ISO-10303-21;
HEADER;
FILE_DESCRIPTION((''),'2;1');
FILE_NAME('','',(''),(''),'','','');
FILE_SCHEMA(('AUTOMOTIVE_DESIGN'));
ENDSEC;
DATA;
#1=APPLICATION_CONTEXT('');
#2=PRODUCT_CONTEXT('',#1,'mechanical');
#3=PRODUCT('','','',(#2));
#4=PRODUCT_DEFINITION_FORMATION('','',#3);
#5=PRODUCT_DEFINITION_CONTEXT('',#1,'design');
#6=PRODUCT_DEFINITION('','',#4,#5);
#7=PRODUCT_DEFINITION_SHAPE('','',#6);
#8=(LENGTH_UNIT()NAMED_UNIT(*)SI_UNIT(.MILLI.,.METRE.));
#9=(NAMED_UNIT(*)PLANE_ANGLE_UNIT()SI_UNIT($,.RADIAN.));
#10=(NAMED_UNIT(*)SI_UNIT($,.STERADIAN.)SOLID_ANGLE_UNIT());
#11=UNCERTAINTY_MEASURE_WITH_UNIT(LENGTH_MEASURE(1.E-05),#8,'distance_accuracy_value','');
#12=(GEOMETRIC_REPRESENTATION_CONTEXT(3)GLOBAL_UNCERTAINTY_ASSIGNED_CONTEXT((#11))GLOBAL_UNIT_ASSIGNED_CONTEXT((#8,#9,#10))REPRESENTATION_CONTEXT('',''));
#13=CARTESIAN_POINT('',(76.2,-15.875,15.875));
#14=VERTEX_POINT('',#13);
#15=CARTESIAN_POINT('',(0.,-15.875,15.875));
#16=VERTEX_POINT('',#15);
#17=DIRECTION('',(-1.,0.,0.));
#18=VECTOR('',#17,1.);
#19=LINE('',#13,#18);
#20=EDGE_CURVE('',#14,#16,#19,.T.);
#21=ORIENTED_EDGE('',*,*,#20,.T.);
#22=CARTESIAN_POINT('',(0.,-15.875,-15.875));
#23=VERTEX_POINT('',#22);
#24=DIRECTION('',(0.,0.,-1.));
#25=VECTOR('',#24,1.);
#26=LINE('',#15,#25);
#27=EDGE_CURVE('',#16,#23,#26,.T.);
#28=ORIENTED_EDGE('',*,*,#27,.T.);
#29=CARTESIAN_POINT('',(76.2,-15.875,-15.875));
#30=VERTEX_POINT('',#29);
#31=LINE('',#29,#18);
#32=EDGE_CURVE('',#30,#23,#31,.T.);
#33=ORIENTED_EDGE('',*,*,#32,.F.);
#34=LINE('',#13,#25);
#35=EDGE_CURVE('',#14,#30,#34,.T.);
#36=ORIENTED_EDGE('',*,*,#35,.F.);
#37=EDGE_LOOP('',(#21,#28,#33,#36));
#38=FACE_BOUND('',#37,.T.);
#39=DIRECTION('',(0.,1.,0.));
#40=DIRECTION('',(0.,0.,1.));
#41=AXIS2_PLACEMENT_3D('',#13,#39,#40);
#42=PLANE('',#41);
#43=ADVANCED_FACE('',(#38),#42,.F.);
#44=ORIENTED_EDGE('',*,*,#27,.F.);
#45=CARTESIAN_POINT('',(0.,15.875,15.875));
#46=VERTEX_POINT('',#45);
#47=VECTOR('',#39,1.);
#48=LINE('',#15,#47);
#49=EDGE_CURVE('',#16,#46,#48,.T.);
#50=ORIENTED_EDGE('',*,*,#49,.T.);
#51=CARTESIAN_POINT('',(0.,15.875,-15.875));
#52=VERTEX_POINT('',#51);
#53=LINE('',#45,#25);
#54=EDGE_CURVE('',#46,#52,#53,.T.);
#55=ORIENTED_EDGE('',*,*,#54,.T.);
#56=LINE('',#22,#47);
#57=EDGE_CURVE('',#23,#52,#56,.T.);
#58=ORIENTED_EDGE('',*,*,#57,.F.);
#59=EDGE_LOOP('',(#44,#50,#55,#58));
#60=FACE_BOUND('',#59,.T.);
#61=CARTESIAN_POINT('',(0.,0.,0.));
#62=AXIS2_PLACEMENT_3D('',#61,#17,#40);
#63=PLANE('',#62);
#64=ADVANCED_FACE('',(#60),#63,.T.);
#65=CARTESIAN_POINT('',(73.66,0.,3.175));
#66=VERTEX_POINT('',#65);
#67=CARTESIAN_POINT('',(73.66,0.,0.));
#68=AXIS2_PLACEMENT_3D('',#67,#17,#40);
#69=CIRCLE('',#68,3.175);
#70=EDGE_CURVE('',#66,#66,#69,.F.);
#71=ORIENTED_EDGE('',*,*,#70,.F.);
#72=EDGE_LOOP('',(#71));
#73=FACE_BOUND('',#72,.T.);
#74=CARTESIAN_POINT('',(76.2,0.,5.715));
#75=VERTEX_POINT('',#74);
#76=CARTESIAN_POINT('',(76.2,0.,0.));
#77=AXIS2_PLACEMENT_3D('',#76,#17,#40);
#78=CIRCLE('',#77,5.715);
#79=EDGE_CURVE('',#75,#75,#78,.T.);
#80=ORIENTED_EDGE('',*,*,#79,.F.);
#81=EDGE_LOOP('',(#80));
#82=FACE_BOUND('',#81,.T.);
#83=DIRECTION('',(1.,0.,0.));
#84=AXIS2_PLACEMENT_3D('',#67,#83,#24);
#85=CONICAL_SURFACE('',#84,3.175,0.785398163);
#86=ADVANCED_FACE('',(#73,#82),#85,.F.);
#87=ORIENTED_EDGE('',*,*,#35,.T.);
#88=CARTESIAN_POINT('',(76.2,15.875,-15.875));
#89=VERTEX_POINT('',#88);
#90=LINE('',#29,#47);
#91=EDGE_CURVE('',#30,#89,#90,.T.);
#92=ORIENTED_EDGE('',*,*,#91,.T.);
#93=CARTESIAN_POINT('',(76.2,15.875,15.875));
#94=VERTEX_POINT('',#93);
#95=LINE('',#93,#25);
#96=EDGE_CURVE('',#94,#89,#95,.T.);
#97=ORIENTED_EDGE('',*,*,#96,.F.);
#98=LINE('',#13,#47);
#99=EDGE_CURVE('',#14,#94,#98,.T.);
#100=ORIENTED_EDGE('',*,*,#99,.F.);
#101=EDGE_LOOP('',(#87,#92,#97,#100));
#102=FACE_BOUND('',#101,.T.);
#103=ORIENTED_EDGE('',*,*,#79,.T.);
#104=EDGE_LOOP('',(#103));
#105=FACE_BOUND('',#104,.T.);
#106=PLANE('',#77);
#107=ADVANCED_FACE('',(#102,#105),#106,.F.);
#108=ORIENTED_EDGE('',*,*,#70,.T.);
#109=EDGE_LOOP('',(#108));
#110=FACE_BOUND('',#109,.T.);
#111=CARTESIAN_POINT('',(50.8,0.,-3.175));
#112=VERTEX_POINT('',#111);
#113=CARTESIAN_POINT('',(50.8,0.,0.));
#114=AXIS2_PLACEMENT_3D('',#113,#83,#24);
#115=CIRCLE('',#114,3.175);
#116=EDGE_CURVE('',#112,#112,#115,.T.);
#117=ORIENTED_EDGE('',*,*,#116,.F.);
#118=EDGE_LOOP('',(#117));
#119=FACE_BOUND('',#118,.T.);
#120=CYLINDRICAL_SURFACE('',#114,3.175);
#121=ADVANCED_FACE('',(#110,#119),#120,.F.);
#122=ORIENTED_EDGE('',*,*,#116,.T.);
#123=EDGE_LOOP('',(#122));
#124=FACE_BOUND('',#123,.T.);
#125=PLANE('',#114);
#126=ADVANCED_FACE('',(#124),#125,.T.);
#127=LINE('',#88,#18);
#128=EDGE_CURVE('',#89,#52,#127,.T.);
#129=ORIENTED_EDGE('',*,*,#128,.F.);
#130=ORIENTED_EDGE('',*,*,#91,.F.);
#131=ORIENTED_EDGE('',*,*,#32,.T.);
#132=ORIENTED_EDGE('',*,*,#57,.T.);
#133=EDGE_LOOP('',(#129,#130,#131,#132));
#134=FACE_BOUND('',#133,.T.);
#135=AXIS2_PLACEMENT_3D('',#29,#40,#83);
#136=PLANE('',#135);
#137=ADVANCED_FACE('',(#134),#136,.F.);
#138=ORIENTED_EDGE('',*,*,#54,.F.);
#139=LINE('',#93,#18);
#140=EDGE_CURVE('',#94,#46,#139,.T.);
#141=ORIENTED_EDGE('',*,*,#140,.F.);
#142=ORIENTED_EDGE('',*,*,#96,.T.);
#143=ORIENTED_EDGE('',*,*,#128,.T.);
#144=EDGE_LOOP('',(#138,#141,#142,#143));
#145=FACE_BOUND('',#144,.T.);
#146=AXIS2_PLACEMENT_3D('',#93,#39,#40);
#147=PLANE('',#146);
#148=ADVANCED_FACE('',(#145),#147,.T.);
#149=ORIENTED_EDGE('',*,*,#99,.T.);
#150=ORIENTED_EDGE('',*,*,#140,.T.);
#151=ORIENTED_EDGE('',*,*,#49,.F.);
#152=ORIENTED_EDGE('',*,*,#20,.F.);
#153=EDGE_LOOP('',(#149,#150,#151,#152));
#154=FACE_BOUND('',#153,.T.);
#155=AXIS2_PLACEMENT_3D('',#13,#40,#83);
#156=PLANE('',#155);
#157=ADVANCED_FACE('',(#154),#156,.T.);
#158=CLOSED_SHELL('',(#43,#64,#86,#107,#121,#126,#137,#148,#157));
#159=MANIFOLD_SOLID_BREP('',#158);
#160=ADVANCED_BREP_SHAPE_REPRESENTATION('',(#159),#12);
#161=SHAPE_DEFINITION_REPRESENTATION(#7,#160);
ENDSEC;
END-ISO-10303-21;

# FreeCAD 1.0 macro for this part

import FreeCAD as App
import Part
import Sketcher
Q = App.Units.Quantity


def edges_at(feature, points):
    """Names of the edges that pass closest to the given points."""
    edges = feature.Shape.Edges
    near = lambda p: min(range(len(edges)), key=lambda i: edges[i].distToShape(Part.Vertex(*p))[0])
    return sorted({f"Edge{near(p) + 1}" for p in points})


def add_polygon(sketch, points):
    """Adds a closed chain of lines whose ends are joined by coincident constraints."""
    first, n = sketch.GeometryCount, len(points)
    for a, b in zip(points, points[1:] + points[:1]):
        sketch.addGeometry(Part.LineSegment(App.Vector(*a, 0), App.Vector(*b, 0)), False)
    for i in range(n):
        sketch.addConstraint(Sketcher.Constraint("Coincident", first + i, 2, first + (i + 1) % n, 1))

doc = App.newDocument("Part")
params = doc.addObject("Spreadsheet::Sheet", "Params")
for row, (alias, value) in enumerate([
    ("sketch1_width", "1.25 in"),
    ("pad1_length", "3 in"),
    ("sketch2_diameter", "0.25 in"),
    ("pocket1_length", "1 in"),
    ("chamfer_size", "0.1 in"),
], start=1):
    params.set(f"A{row}", alias)
    params.set(f"B{row}", "=" + value)
    params.setAlias(f"B{row}", alias)

body = doc.addObject("PartDesign::Body", "Body")

# Sketch on YZ plane
sketch1 = doc.addObject("Sketcher::SketchObject", "Sketch")
body.addObject(sketch1)
sketch1.AttachmentSupport = (doc.YZ_Plane, [""])
sketch1.MapMode = "FlatFace"
add_polygon(sketch1, [(15.875, 15.875), (-15.875, 15.875), (-15.875, -15.875), (15.875, -15.875)])  # lines 0-3
sketch1.addConstraint(Sketcher.Constraint("Horizontal", 0))
sketch1.addConstraint(Sketcher.Constraint("Vertical", 1))
sketch1.addConstraint(Sketcher.Constraint("Horizontal", 2))
sketch1.addConstraint(Sketcher.Constraint("Vertical", 3))
sketch1.addConstraint(Sketcher.Constraint("Symmetric", 0, 2, 2, 2, -1, 1))
sketch1.addConstraint(Sketcher.Constraint("Equal", 2, 1))
sketch1.addConstraint(Sketcher.Constraint("DistanceX", 0, 2, 0, 1, Q("1.25 in")))
sketch1.setExpression("Constraints[10]", "Params.sketch1_width")
pad1 = doc.addObject("PartDesign::Pad", "Pad")
body.addObject(pad1)
pad1.Profile = sketch1
pad1.setExpression("Length", "Params.pad1_length")

# Sketch on YZ plane
sketch2 = doc.addObject("Sketcher::SketchObject", "Sketch001")
body.addObject(sketch2)
sketch2.AttachmentSupport = (doc.YZ_Plane, [""])
sketch2.MapMode = "FlatFace"
sketch2.AttachmentOffset = App.Placement(App.Vector(0, 0, 3 * 25.4), App.Rotation())
sketch2.addGeometry(Part.Circle(App.Vector(0, 0, 0), App.Vector(0, 0, 1), 3.175), False)
sketch2.addConstraint(Sketcher.Constraint("Coincident", 0, 3, -1, 1))
sketch2.addConstraint(Sketcher.Constraint("Diameter", 0, Q("0.25 in")))
sketch2.setExpression("Constraints[1]", "Params.sketch2_diameter")
pocket1 = doc.addObject("PartDesign::Pocket", "Pocket")
body.addObject(pocket1)
pocket1.Profile = sketch2
pocket1.setExpression("Length", "Params.pocket1_length")
doc.recompute()

chamfer = doc.addObject("PartDesign::Chamfer", "Chamfer")
body.addObject(chamfer)
chamfer.Base = (pocket1, edges_at(pocket1, [(76.2, 0, 3.175)]))
chamfer.setExpression("Size", "Params.chamfer_size")

doc.recompute()
